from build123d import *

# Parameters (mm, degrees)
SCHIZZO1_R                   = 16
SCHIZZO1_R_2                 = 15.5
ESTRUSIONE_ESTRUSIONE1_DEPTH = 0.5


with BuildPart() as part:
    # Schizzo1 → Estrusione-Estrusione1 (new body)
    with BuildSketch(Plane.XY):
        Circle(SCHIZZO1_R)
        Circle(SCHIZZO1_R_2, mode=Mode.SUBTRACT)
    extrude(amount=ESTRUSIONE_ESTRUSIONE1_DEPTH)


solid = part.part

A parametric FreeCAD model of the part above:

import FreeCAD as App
import Part
import Sketcher
Q = App.Units.Quantity

doc = App.newDocument("Part")
params = doc.addObject("Spreadsheet::Sheet", "Params")
for row, (alias, value) in enumerate([
    ("sketch1_diameter", "32 mm"),
    ("sketch1_diameter2", "31 mm"),
    ("pad1_length", "0.5 mm"),
], start=1):
    params.set(f"A{row}", alias)
    params.set(f"B{row}", "=" + value)
    params.setAlias(f"B{row}", alias)

body = doc.addObject("PartDesign::Body", "Body")

# Sketch on XY plane
sketch1 = doc.addObject("Sketcher::SketchObject", "Sketch")
body.addObject(sketch1)
sketch1.AttachmentSupport = (doc.XY_Plane, [""])
sketch1.MapMode = "FlatFace"
sketch1.addGeometry([
    Part.Circle(App.Vector(0, 0, 0), App.Vector(0, 0, 1), 16),
    Part.Circle(App.Vector(0, 0, 0), App.Vector(0, 0, 1), 16),
], False)
sketch1.addConstraint([
    Sketcher.Constraint("Coincident", 0, 3, -1, 1),
    Sketcher.Constraint("Coincident", 1, 3, -1, 1),
    Sketcher.Constraint("Diameter", 0, Q("32 mm")),
    Sketcher.Constraint("Diameter", 1, Q("31 mm")),
])
sketch1.setExpression("Constraints[2]", "Params.sketch1_diameter")
sketch1.setExpression("Constraints[3]", "Params.sketch1_diameter2")
pad1 = doc.addObject("PartDesign::Pad", "Pad")
body.addObject(pad1)
pad1.Profile = sketch1
pad1.setExpression("Length", "Params.pad1_length")

doc.recompute()
